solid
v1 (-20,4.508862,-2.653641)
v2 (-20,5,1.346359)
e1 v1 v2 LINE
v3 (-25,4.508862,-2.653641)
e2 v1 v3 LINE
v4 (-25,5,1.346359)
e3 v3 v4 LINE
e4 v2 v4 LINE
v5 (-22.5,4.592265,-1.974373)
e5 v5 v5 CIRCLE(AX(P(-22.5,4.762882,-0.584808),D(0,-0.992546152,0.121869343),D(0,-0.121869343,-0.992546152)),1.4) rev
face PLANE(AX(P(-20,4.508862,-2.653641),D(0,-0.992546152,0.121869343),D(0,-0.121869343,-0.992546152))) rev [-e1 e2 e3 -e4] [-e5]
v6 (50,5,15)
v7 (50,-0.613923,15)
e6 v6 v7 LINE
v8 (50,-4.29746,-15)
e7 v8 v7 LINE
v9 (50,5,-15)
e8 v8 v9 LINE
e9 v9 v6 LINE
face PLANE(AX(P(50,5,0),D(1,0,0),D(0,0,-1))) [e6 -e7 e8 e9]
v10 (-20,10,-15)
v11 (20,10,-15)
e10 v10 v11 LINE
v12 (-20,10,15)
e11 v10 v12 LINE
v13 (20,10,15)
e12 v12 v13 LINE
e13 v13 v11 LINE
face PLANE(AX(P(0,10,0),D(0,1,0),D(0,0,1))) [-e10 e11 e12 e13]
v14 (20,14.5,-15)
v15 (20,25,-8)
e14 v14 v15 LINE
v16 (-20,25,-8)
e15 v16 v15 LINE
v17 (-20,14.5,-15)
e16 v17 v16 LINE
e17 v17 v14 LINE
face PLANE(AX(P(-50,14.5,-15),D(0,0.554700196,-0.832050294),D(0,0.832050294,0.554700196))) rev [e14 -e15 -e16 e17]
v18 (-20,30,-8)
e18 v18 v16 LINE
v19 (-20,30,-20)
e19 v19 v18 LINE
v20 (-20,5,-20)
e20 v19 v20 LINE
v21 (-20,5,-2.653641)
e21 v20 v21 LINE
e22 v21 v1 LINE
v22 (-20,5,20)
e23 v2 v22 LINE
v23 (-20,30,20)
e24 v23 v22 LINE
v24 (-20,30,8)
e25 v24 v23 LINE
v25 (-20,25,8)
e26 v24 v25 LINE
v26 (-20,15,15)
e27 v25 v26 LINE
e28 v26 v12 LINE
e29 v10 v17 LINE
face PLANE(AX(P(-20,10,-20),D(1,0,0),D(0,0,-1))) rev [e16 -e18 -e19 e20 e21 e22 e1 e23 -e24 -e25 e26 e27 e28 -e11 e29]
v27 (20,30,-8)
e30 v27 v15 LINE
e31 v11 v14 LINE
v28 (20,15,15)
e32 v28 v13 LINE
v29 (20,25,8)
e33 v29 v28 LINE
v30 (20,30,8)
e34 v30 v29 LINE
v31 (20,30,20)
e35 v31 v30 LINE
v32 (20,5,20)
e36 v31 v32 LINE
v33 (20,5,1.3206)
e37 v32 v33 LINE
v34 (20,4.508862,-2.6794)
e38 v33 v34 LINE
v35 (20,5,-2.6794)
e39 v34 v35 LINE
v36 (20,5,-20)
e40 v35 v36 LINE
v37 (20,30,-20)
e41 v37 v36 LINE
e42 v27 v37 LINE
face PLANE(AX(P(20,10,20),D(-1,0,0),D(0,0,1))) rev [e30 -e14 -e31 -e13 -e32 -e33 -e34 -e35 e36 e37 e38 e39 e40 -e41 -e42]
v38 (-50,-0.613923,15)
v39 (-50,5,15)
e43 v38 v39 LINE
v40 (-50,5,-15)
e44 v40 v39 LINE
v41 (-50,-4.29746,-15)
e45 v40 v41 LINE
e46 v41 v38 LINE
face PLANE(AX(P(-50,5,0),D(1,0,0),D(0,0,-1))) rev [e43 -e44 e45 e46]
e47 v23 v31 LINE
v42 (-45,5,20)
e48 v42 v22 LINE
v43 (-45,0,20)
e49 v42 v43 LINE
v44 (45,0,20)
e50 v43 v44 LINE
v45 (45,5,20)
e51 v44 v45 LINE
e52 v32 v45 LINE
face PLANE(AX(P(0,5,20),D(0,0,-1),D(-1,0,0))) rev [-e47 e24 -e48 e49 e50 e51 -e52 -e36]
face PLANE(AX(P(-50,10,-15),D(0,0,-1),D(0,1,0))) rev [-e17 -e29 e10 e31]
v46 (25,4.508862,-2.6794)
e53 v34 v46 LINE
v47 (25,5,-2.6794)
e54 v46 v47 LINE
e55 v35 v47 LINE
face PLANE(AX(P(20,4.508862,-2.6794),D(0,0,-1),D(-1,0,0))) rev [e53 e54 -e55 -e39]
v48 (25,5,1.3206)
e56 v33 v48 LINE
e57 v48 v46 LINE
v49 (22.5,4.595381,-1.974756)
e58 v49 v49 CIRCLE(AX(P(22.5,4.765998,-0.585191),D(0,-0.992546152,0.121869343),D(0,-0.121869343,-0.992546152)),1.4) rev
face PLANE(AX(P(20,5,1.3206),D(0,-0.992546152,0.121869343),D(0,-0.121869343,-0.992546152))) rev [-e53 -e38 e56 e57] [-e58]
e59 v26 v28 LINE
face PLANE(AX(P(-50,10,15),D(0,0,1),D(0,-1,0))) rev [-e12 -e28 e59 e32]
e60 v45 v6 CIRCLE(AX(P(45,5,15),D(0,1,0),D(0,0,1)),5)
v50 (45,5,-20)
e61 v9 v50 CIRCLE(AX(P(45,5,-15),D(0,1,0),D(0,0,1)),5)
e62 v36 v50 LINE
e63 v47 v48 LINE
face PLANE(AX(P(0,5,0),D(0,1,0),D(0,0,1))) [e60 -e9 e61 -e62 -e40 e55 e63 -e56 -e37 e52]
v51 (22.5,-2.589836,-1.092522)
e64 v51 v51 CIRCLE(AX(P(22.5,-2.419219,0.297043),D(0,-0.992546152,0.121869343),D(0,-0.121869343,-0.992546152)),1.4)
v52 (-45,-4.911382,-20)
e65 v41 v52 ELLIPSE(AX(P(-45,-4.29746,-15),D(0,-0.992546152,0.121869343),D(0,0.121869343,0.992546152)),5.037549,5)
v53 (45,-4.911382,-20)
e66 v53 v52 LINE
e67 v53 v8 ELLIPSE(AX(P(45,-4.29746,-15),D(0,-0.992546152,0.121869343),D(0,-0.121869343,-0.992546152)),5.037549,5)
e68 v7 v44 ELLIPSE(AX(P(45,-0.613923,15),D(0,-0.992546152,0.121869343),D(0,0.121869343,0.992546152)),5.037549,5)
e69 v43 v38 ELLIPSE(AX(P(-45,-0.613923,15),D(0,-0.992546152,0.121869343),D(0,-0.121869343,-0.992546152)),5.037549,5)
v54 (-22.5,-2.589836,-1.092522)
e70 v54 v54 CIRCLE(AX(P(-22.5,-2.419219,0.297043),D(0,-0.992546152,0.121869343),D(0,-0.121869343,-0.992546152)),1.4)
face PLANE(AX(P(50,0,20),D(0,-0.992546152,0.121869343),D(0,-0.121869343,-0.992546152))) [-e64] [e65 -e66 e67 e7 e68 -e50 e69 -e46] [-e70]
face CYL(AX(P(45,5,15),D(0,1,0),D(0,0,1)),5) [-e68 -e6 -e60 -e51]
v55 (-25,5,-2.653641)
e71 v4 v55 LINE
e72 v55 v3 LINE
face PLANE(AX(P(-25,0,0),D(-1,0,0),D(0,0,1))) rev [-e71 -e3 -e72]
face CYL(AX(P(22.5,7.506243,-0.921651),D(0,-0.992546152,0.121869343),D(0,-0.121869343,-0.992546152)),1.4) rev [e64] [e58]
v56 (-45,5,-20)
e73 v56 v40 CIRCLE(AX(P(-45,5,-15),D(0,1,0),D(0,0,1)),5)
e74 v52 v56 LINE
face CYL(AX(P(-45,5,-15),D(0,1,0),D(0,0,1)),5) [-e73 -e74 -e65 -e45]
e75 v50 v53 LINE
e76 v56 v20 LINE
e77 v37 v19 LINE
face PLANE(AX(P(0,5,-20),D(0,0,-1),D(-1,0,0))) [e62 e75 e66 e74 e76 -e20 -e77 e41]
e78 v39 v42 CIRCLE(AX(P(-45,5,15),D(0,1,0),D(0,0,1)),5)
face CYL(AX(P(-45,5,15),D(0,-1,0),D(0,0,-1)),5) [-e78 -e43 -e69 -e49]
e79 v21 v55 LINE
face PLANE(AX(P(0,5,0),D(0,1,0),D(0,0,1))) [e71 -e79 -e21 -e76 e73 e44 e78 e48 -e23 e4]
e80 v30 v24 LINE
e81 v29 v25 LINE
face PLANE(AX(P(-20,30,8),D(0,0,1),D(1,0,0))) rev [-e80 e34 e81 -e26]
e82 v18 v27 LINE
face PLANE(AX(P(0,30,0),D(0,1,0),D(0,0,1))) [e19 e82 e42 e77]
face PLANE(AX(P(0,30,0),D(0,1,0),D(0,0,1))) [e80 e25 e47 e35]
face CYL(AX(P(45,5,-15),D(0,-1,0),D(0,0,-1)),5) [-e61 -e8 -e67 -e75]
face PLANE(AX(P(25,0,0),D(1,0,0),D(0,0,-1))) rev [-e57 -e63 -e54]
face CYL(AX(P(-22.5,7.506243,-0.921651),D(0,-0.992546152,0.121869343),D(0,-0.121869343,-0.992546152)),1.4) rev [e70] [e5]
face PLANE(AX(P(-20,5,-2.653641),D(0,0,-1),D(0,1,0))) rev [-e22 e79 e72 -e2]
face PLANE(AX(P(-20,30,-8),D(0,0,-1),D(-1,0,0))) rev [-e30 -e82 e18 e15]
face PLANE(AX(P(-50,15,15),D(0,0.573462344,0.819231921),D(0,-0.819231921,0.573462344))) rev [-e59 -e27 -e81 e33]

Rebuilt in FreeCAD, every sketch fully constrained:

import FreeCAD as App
import Part
import Sketcher
from FreeCAD import Vector
Q = App.Units.Quantity


def edges_at(feature, points):
    """Names of the edges that pass closest to the given points."""
    edges = feature.Shape.Edges
    near = lambda p: min(range(len(edges)), key=lambda i: edges[i].distToShape(Part.Vertex(*p))[0])
    return sorted({f"Edge{near(p) + 1}" for p in points})

doc = App.newDocument("Part")
params = doc.addObject("Spreadsheet::Sheet", "Params")
for row, (alias, value) in enumerate([
    ("sketch1_width", "100 mm"),
    ("sketch1_height", "40 mm"),
    ("pad1_length", "5 mm"),
    ("sketch2_width", "40 mm"),
    ("pad2_length", "5 mm"),
    ("sketch3_width", "40 mm"),
    ("sketch3_height", "12 mm"),
    ("pad3_length", "20 mm"),
    ("sketch4_width", "15 mm"),
    ("sketch4_width2", "5 mm"),
    ("sketch4_height", "7 mm"),
    ("sketch4_width3", "4.5 mm"),
    ("pocket1_length", "70 mm"),
    ("sketch5_height", "40 mm"),
    ("pad4_length", "100 mm"),
    ("sketch6_diameter", "2.8 mm"),
    ("pocket2_length", "10 mm"),
    ("sketch7_height", "4 mm"),
    ("pocket3_length", "30 mm"),
    ("sketch8_height", "4 mm"),
    ("pad5_length", "25 mm"),
    ("sketch9_height", "4 mm"),
    ("pocket4_length", "30 mm"),
    ("sketch10_height", "4 mm"),
    ("pad6_length", "25 mm"),
    ("fillet_radius", "5 mm"),
], start=1):
    params.set(f"A{row}", alias)
    params.set(f"B{row}", "=" + value)
    params.setAlias(f"B{row}", alias)

body = doc.addObject("PartDesign::Body", "Body")

# Sketch on XZ plane
sketch1 = doc.addObject("Sketcher::SketchObject", "Sketch")
body.addObject(sketch1)
sketch1.AttachmentSupport = (doc.XZ_Plane, [""])
sketch1.MapMode = "FlatFace"
sketch1.addGeometry(Part.LineSegment(Vector(-50, -20, 0), Vector(-50, 20, 0)), False)
sketch1.addGeometry(Part.LineSegment(Vector(-50, 20, 0), Vector(50, 20, 0)), False)
sketch1.addGeometry(Part.LineSegment(Vector(50, 20, 0), Vector(50, -20, 0)), False)
sketch1.addGeometry(Part.LineSegment(Vector(50, -20, 0), Vector(-50, -20, 0)), False)
sketch1.addConstraint(Sketcher.Constraint("Coincident", 0, 2, 1, 1))
sketch1.addConstraint(Sketcher.Constraint("Coincident", 1, 2, 2, 1))
sketch1.addConstraint(Sketcher.Constraint("Coincident", 2, 2, 3, 1))
sketch1.addConstraint(Sketcher.Constraint("Coincident", 3, 2, 0, 1))
sketch1.addConstraint(Sketcher.Constraint("Vertical", 0))
sketch1.addConstraint(Sketcher.Constraint("Horizontal", 1))
sketch1.addConstraint(Sketcher.Constraint("Vertical", 2))
sketch1.addConstraint(Sketcher.Constraint("Horizontal", 3))
sketch1.addConstraint(Sketcher.Constraint("Symmetric", 0, 2, 2, 2, -1, 1))
sketch1.addConstraint(Sketcher.Constraint("DistanceX", 1, 1, 1, 2, 100.0))
sketch1.addConstraint(Sketcher.Constraint("DistanceY", 0, 1, 0, 2, 40.0))
sketch1.setExpression("Constraints[9]", "Params.sketch1_width")
sketch1.setExpression("Constraints[10]", "Params.sketch1_height")
pad1 = doc.addObject("PartDesign::Pad", "Pad")
body.addObject(pad1)
pad1.Profile = sketch1
pad1.setExpression("Length", "Params.pad1_length")
pad1.Reversed = True

# Sketch on XZ plane
sketch2 = doc.addObject("Sketcher::SketchObject", "Sketch001")
body.addObject(sketch2)
sketch2.AttachmentSupport = (doc.XZ_Plane, [""])
sketch2.MapMode = "FlatFace"
sketch2.AttachmentOffset = App.Placement(Vector(0, 0, -5), App.Rotation())
sketch2.addGeometry(Part.LineSegment(Vector(-20, -20, 0), Vector(-20, 20, 0)), False)
sketch2.addGeometry(Part.LineSegment(Vector(-20, 20, 0), Vector(20, 20, 0)), False)
sketch2.addGeometry(Part.LineSegment(Vector(20, 20, 0), Vector(20, -20, 0)), False)
sketch2.addGeometry(Part.LineSegment(Vector(20, -20, 0), Vector(-20, -20, 0)), False)
sketch2.addConstraint(Sketcher.Constraint("Coincident", 0, 2, 1, 1))
sketch2.addConstraint(Sketcher.Constraint("Coincident", 1, 2, 2, 1))
sketch2.addConstraint(Sketcher.Constraint("Coincident", 2, 2, 3, 1))
sketch2.addConstraint(Sketcher.Constraint("Coincident", 3, 2, 0, 1))
sketch2.addConstraint(Sketcher.Constraint("Vertical", 0))
sketch2.addConstraint(Sketcher.Constraint("Horizontal", 1))
sketch2.addConstraint(Sketcher.Constraint("Vertical", 2))
sketch2.addConstraint(Sketcher.Constraint("Horizontal", 3))
sketch2.addConstraint(Sketcher.Constraint("Symmetric", 0, 2, 2, 2, -1, 1))
sketch2.addConstraint(Sketcher.Constraint("Equal", 3, 0))
sketch2.addConstraint(Sketcher.Constraint("DistanceX", 1, 1, 1, 2, 40.0))
sketch2.setExpression("Constraints[10]", "Params.sketch2_width")
pad2 = doc.addObject("PartDesign::Pad", "Pad001")
body.addObject(pad2)
pad2.Profile = sketch2
pad2.setExpression("Length", "Params.pad2_length")
pad2.Reversed = True

# Sketch on XZ plane
sketch3 = doc.addObject("Sketcher::SketchObject", "Sketch002")
body.addObject(sketch3)
sketch3.AttachmentSupport = (doc.XZ_Plane, [""])
sketch3.MapMode = "FlatFace"
sketch3.AttachmentOffset = App.Placement(Vector(0, 0, -10), App.Rotation())
sketch3.addGeometry(Part.LineSegment(Vector(-20, -20, 0), Vector(-20, -8, 0)), False)
sketch3.addGeometry(Part.LineSegment(Vector(-20, -8, 0), Vector(20, -8, 0)), False)
sketch3.addGeometry(Part.LineSegment(Vector(20, -8, 0), Vector(20, -20, 0)), False)
sketch3.addGeometry(Part.LineSegment(Vector(20, -20, 0), Vector(-20, -20, 0)), False)
sketch3.addGeometry(Part.LineSegment(Vector(-20, 8, 0), Vector(-20, 20, 0)), False)
sketch3.addGeometry(Part.LineSegment(Vector(-20, 20, 0), Vector(20, 20, 0)), False)
sketch3.addGeometry(Part.LineSegment(Vector(20, 20, 0), Vector(20, 8, 0)), False)
sketch3.addGeometry(Part.LineSegment(Vector(20, 8, 0), Vector(-20, 8, 0)), False)
sketch3.addConstraint(Sketcher.Constraint("Coincident", 0, 2, 1, 1))
sketch3.addConstraint(Sketcher.Constraint("Coincident", 1, 2, 2, 1))
sketch3.addConstraint(Sketcher.Constraint("Coincident", 2, 2, 3, 1))
sketch3.addConstraint(Sketcher.Constraint("Coincident", 3, 2, 0, 1))
sketch3.addConstraint(Sketcher.Constraint("Coincident", 4, 2, 5, 1))
sketch3.addConstraint(Sketcher.Constraint("Coincident", 5, 2, 6, 1))
sketch3.addConstraint(Sketcher.Constraint("Coincident", 6, 2, 7, 1))
sketch3.addConstraint(Sketcher.Constraint("Coincident", 7, 2, 4, 1))
sketch3.addConstraint(Sketcher.Constraint("Vertical", 0))
sketch3.addConstraint(Sketcher.Constraint("Horizontal", 1))
sketch3.addConstraint(Sketcher.Constraint("Vertical", 2))
sketch3.addConstraint(Sketcher.Constraint("Horizontal", 3))
sketch3.addConstraint(Sketcher.Constraint("Vertical", 4))
sketch3.addConstraint(Sketcher.Constraint("Horizontal", 5))
sketch3.addConstraint(Sketcher.Constraint("Vertical", 6))
sketch3.addConstraint(Sketcher.Constraint("Horizontal", 7))
sketch3.addConstraint(Sketcher.Constraint("Symmetric", 2, 2, 4, 2, -1, 1))
sketch3.addConstraint(Sketcher.Constraint("Symmetric", 0, 2, 6, 2, -1, 1))
sketch3.addConstraint(Sketcher.Constraint("Vertical", 3, 2, 4, 2))
sketch3.addConstraint(Sketcher.Constraint("DistanceX", 1, 1, 1, 2, 40.0))
sketch3.addConstraint(Sketcher.Constraint("DistanceY", 0, 1, 0, 2, 12.0))
sketch3.addConstraint(Sketcher.Constraint("DistanceY", 0, 2, -1, 1, 8.0))
sketch3.setExpression("Constraints[19]", "Params.sketch3_width")
sketch3.setExpression("Constraints[20]", "Params.sketch3_height")
pad3 = doc.addObject("PartDesign::Pad", "Pad002")
body.addObject(pad3)
pad3.Profile = sketch3
pad3.setExpression("Length", "Params.pad3_length")
pad3.Reversed = True

# Sketch on YZ plane
sketch4 = doc.addObject("Sketcher::SketchObject", "Sketch003")
body.addObject(sketch4)
sketch4.AttachmentSupport = (doc.YZ_Plane, [""])
sketch4.MapMode = "FlatFace"
sketch4.AttachmentOffset = App.Placement(Vector(0, 0, 20), App.Rotation())
sketch4.addGeometry(Part.LineSegment(Vector(10, 15, 0), Vector(10, 8, 0)), False)
sketch4.addGeometry(Part.LineSegment(Vector(10, 8, 0), Vector(25, 8, 0)), False)
sketch4.addGeometry(Part.LineSegment(Vector(25, 8, 0), Vector(15, 15, 0)), False)
sketch4.addGeometry(Part.LineSegment(Vector(15, 15, 0), Vector(10, 15, 0)), False)
sketch4.addGeometry(Part.LineSegment(Vector(10, -8, 0), Vector(10, -15, 0)), False)
sketch4.addGeometry(Part.LineSegment(Vector(10, -15, 0), Vector(14.5, -15, 0)), False)
sketch4.addGeometry(Part.LineSegment(Vector(14.5, -15, 0), Vector(25, -8, 0)), False)
sketch4.addGeometry(Part.LineSegment(Vector(25, -8, 0), Vector(10, -8, 0)), False)
sketch4.addConstraint(Sketcher.Constraint("Coincident", 0, 2, 1, 1))
sketch4.addConstraint(Sketcher.Constraint("Coincident", 1, 2, 2, 1))
sketch4.addConstraint(Sketcher.Constraint("Coincident", 2, 2, 3, 1))
sketch4.addConstraint(Sketcher.Constraint("Coincident", 3, 2, 0, 1))
sketch4.addConstraint(Sketcher.Constraint("Coincident", 4, 2, 5, 1))
sketch4.addConstraint(Sketcher.Constraint("Coincident", 5, 2, 6, 1))
sketch4.addConstraint(Sketcher.Constraint("Coincident", 6, 2, 7, 1))
sketch4.addConstraint(Sketcher.Constraint("Coincident", 7, 2, 4, 1))
sketch4.addConstraint(Sketcher.Constraint("Vertical", 0))
sketch4.addConstraint(Sketcher.Constraint("Horizontal", 1))
sketch4.addConstraint(Sketcher.Constraint("Horizontal", 3))
sketch4.addConstraint(Sketcher.Constraint("Vertical", 4))
sketch4.addConstraint(Sketcher.Constraint("Horizontal", 5))
sketch4.addConstraint(Sketcher.Constraint("Horizontal", 7))
sketch4.addConstraint(Sketcher.Constraint("Symmetric", 3, 2, 4, 2, -1))
sketch4.addConstraint(Sketcher.Constraint("Symmetric", 1, 2, 6, 2, -1))
sketch4.addConstraint(Sketcher.Constraint("DistanceX", 1, 1, 1, 2, 15.0))
sketch4.addConstraint(Sketcher.Constraint("DistanceX", 3, 2, 3, 1, 5.0))
sketch4.addConstraint(Sketcher.Constraint("DistanceY", 0, 2, 0, 1, 7.0))
sketch4.addConstraint(Sketcher.Constraint("DistanceX", 5, 1, 5, 2, 4.5))
sketch4.addConstraint(Sketcher.Constraint("DistanceX", -1, 1, 0, 2, 10.0))
sketch4.addConstraint(Sketcher.Constraint("DistanceY", -1, 1, 0, 2, 8.0))
sketch4.setExpression("Constraints[16]", "Params.sketch4_width")
sketch4.setExpression("Constraints[17]", "Params.sketch4_width2")
sketch4.setExpression("Constraints[18]", "Params.sketch4_height")
sketch4.setExpression("Constraints[19]", "Params.sketch4_width3")
pocket1 = doc.addObject("PartDesign::Pocket", "Pocket")
body.addObject(pocket1)
pocket1.Profile = sketch4
pocket1.setExpression("Length", "Params.pocket1_length")

# Sketch on YZ plane
sketch5 = doc.addObject("Sketcher::SketchObject", "Sketch004")
body.addObject(sketch5)
sketch5.AttachmentSupport = (doc.YZ_Plane, [""])
sketch5.MapMode = "FlatFace"
sketch5.AttachmentOffset = App.Placement(Vector(0, 0, -50), App.Rotation())
sketch5.addGeometry(Part.LineSegment(Vector(-4.9, -20, 0), Vector(0, 20, 0)), False)
sketch5.addGeometry(Part.LineSegment(Vector(0, 20, 0), Vector(0, -20, 0)), False)
sketch5.addGeometry(Part.LineSegment(Vector(0, -20, 0), Vector(-4.9, -20, 0)), False)
sketch5.addConstraint(Sketcher.Constraint("Coincident", 0, 2, 1, 1))
sketch5.addConstraint(Sketcher.Constraint("Coincident", 1, 2, 2, 1))
sketch5.addConstraint(Sketcher.Constraint("Coincident", 2, 2, 0, 1))
sketch5.addConstraint(Sketcher.Constraint("Vertical", 1))
sketch5.addConstraint(Sketcher.Constraint("Horizontal", 2))
sketch5.addConstraint(Sketcher.Constraint("Symmetric", 0, 2, 1, 2, -1, 1))
sketch5.addConstraint(Sketcher.Constraint("DistanceY", 1, 2, 1, 1, 40.0))
sketch5.addConstraint(Sketcher.Constraint("Angle", 0, Q("83 deg")))
sketch5.setExpression("Constraints[6]", "Params.sketch5_height")
pad4 = doc.addObject("PartDesign::Pad", "Pad003")
body.addObject(pad4)
pad4.Profile = sketch5
pad4.setExpression("Length", "Params.pad4_length")

# Sketch on an angled plane
sketch6 = doc.addObject("Sketcher::SketchObject", "Sketch005")
body.addObject(sketch6)
sketch6.Placement = App.Placement(Vector(0, -2.419219, 0.297043), App.Rotation(Vector(1, 0, 0), Vector(0, 0.121869343, 0.992546152), Vector(0, -0.992546152, 0.121869343), "ZXY"))
sketch6.addGeometry(Part.Circle(Vector(-22.5, 0, 0), Vector(0, 0, 1), 1.4), False)
sketch6.addGeometry(Part.Circle(Vector(22.5, 0, 0), Vector(0, 0, 1), 1.4), False)
sketch6.addConstraint(Sketcher.Constraint("Equal", 0, 1))
sketch6.addConstraint(Sketcher.Constraint("Symmetric", 0, 3, 1, 3, -1, 1))
sketch6.addConstraint(Sketcher.Constraint("PointOnObject", 0, 3, -1))
sketch6.addConstraint(Sketcher.Constraint("Diameter", 0, 2.8))
sketch6.addConstraint(Sketcher.Constraint("DistanceX", 0, 3, 1, 3, 45.0))
sketch6.setExpression("Constraints[3]", "Params.sketch6_diameter")
pocket2 = doc.addObject("PartDesign::Pocket", "Pocket001")
body.addObject(pocket2)
pocket2.Profile = sketch6
pocket2.setExpression("Length", "Params.pocket2_length")

# Sketch on YZ plane
sketch7 = doc.addObject("Sketcher::SketchObject", "Sketch006")
body.addObject(sketch7)
sketch7.AttachmentSupport = (doc.YZ_Plane, [""])
sketch7.MapMode = "FlatFace"
sketch7.AttachmentOffset = App.Placement(Vector(0, 0, -50), App.Rotation())
sketch7.addGeometry(Part.LineSegment(Vector(5, 1.35, 0), Vector(5, -2.65, 0)), False)
sketch7.addGeometry(Part.LineSegment(Vector(5, -2.65, 0), Vector(4.51, -2.65, 0)), False)
sketch7.addGeometry(Part.LineSegment(Vector(4.51, -2.65, 0), Vector(5, 1.35, 0)), False)
sketch7.addConstraint(Sketcher.Constraint("Coincident", 0, 2, 1, 1))
sketch7.addConstraint(Sketcher.Constraint("Coincident", 1, 2, 2, 1))
sketch7.addConstraint(Sketcher.Constraint("Coincident", 2, 2, 0, 1))
sketch7.addConstraint(Sketcher.Constraint("Vertical", 0))
sketch7.addConstraint(Sketcher.Constraint("Horizontal", 1))
sketch7.addConstraint(Sketcher.Constraint("DistanceY", 0, 2, 0, 1, 4.0))
sketch7.addConstraint(Sketcher.Constraint("Angle", 2, Q("83 deg")))
sketch7.addConstraint(Sketcher.Constraint("DistanceX", -1, 1, 0, 2, 5.0))
sketch7.addConstraint(Sketcher.Constraint("DistanceY", 0, 2, -1, 1, 2.653641))
sketch7.setExpression("Constraints[5]", "Params.sketch7_height")
pocket3 = doc.addObject("PartDesign::Pocket", "Pocket002")
body.addObject(pocket3)
pocket3.Profile = sketch7
pocket3.setExpression("Length", "Params.pocket3_length")
pocket3.Reversed = True

# Sketch on YZ plane
sketch8 = doc.addObject("Sketcher::SketchObject", "Sketch007")
body.addObject(sketch8)
sketch8.AttachmentSupport = (doc.YZ_Plane, [""])
sketch8.MapMode = "FlatFace"
sketch8.AttachmentOffset = App.Placement(Vector(0, 0, -50), App.Rotation())
sketch8.addGeometry(Part.LineSegment(Vector(5, -2.65, 0), Vector(4.51, -2.65, 0)), False)
sketch8.addGeometry(Part.LineSegment(Vector(4.51, -2.65, 0), Vector(5, 1.35, 0)), False)
sketch8.addGeometry(Part.LineSegment(Vector(5, 1.35, 0), Vector(5, -2.65, 0)), False)
sketch8.addConstraint(Sketcher.Constraint("Coincident", 0, 2, 1, 1))
sketch8.addConstraint(Sketcher.Constraint("Coincident", 1, 2, 2, 1))
sketch8.addConstraint(Sketcher.Constraint("Coincident", 2, 2, 0, 1))
sketch8.addConstraint(Sketcher.Constraint("Horizontal", 0))
sketch8.addConstraint(Sketcher.Constraint("Vertical", 2))
sketch8.addConstraint(Sketcher.Constraint("DistanceY", 2, 2, 2, 1, 4.0))
sketch8.addConstraint(Sketcher.Constraint("Angle", 1, Q("83 deg")))
sketch8.addConstraint(Sketcher.Constraint("DistanceX", -1, 1, 1, 2, 5.0))
sketch8.addConstraint(Sketcher.Constraint("DistanceY", 0, 2, -1, 1, 2.653641))
sketch8.setExpression("Constraints[5]", "Params.sketch8_height")
pad5 = doc.addObject("PartDesign::Pad", "Pad004")
body.addObject(pad5)
pad5.Profile = sketch8
pad5.setExpression("Length", "Params.pad5_length")

# Sketch on YZ plane
sketch9 = doc.addObject("Sketcher::SketchObject", "Sketch008")
body.addObject(sketch9)
sketch9.AttachmentSupport = (doc.YZ_Plane, [""])
sketch9.MapMode = "FlatFace"
sketch9.AttachmentOffset = App.Placement(Vector(0, 0, 50), App.Rotation())
sketch9.addGeometry(Part.LineSegment(Vector(5, -2.68, 0), Vector(5, 1.32, 0)), False)
sketch9.addGeometry(Part.LineSegment(Vector(5, 1.32, 0), Vector(4.51, -2.68, 0)), False)
sketch9.addGeometry(Part.LineSegment(Vector(4.51, -2.68, 0), Vector(5, -2.68, 0)), False)
sketch9.addConstraint(Sketcher.Constraint("Coincident", 0, 2, 1, 1))
sketch9.addConstraint(Sketcher.Constraint("Coincident", 1, 2, 2, 1))
sketch9.addConstraint(Sketcher.Constraint("Coincident", 2, 2, 0, 1))
sketch9.addConstraint(Sketcher.Constraint("Vertical", 0))
sketch9.addConstraint(Sketcher.Constraint("Horizontal", 2))
sketch9.addConstraint(Sketcher.Constraint("DistanceY", 0, 1, 0, 2, 4.0))
sketch9.addConstraint(Sketcher.Constraint("Angle", 1, Q("-97 deg")))
sketch9.addConstraint(Sketcher.Constraint("DistanceX", -1, 1, 0, 2, 5.0))
sketch9.addConstraint(Sketcher.Constraint("DistanceY", -1, 1, 0, 2, 1.3206))
sketch9.setExpression("Constraints[5]", "Params.sketch9_height")
pocket4 = doc.addObject("PartDesign::Pocket", "Pocket003")
body.addObject(pocket4)
pocket4.Profile = sketch9
pocket4.setExpression("Length", "Params.pocket4_length")

# Sketch on YZ plane
sketch10 = doc.addObject("Sketcher::SketchObject", "Sketch009")
body.addObject(sketch10)
sketch10.AttachmentSupport = (doc.YZ_Plane, [""])
sketch10.MapMode = "FlatFace"
sketch10.AttachmentOffset = App.Placement(Vector(0, 0, 50), App.Rotation())
sketch10.addGeometry(Part.LineSegment(Vector(4.51, -2.68, 0), Vector(5, -2.68, 0)), False)
sketch10.addGeometry(Part.LineSegment(Vector(5, -2.68, 0), Vector(5, 1.32, 0)), False)
sketch10.addGeometry(Part.LineSegment(Vector(5, 1.32, 0), Vector(4.51, -2.68, 0)), False)
sketch10.addConstraint(Sketcher.Constraint("Coincident", 0, 2, 1, 1))
sketch10.addConstraint(Sketcher.Constraint("Coincident", 1, 2, 2, 1))
sketch10.addConstraint(Sketcher.Constraint("Coincident", 2, 2, 0, 1))
sketch10.addConstraint(Sketcher.Constraint("Horizontal", 0))
sketch10.addConstraint(Sketcher.Constraint("Vertical", 1))
sketch10.addConstraint(Sketcher.Constraint("DistanceY", 1, 1, 1, 2, 4.0))
sketch10.addConstraint(Sketcher.Constraint("Angle", 2, Q("-97 deg")))
sketch10.addConstraint(Sketcher.Constraint("DistanceX", -1, 1, 0, 2, 5.0))
sketch10.addConstraint(Sketcher.Constraint("DistanceY", 0, 2, -1, 1, 2.6794))
sketch10.setExpression("Constraints[5]", "Params.sketch10_height")
pad6 = doc.addObject("PartDesign::Pad", "Pad005")
body.addObject(pad6)
pad6.Profile = sketch10
pad6.setExpression("Length", "Params.pad6_length")
pad6.Reversed = True
doc.recompute()

fillet = doc.addObject("PartDesign::Fillet", "Fillet")
body.addObject(fillet)
fillet.Base = (pad6, edges_at(pad6, [
    (50, 0.044, -20),
    (50, 2.5, 20),
    (-50, 2.5, 20),
    (-50, 0.044, -20),
]))
fillet.setExpression("Radius", "Params.fillet_radius")

doc.recompute()
